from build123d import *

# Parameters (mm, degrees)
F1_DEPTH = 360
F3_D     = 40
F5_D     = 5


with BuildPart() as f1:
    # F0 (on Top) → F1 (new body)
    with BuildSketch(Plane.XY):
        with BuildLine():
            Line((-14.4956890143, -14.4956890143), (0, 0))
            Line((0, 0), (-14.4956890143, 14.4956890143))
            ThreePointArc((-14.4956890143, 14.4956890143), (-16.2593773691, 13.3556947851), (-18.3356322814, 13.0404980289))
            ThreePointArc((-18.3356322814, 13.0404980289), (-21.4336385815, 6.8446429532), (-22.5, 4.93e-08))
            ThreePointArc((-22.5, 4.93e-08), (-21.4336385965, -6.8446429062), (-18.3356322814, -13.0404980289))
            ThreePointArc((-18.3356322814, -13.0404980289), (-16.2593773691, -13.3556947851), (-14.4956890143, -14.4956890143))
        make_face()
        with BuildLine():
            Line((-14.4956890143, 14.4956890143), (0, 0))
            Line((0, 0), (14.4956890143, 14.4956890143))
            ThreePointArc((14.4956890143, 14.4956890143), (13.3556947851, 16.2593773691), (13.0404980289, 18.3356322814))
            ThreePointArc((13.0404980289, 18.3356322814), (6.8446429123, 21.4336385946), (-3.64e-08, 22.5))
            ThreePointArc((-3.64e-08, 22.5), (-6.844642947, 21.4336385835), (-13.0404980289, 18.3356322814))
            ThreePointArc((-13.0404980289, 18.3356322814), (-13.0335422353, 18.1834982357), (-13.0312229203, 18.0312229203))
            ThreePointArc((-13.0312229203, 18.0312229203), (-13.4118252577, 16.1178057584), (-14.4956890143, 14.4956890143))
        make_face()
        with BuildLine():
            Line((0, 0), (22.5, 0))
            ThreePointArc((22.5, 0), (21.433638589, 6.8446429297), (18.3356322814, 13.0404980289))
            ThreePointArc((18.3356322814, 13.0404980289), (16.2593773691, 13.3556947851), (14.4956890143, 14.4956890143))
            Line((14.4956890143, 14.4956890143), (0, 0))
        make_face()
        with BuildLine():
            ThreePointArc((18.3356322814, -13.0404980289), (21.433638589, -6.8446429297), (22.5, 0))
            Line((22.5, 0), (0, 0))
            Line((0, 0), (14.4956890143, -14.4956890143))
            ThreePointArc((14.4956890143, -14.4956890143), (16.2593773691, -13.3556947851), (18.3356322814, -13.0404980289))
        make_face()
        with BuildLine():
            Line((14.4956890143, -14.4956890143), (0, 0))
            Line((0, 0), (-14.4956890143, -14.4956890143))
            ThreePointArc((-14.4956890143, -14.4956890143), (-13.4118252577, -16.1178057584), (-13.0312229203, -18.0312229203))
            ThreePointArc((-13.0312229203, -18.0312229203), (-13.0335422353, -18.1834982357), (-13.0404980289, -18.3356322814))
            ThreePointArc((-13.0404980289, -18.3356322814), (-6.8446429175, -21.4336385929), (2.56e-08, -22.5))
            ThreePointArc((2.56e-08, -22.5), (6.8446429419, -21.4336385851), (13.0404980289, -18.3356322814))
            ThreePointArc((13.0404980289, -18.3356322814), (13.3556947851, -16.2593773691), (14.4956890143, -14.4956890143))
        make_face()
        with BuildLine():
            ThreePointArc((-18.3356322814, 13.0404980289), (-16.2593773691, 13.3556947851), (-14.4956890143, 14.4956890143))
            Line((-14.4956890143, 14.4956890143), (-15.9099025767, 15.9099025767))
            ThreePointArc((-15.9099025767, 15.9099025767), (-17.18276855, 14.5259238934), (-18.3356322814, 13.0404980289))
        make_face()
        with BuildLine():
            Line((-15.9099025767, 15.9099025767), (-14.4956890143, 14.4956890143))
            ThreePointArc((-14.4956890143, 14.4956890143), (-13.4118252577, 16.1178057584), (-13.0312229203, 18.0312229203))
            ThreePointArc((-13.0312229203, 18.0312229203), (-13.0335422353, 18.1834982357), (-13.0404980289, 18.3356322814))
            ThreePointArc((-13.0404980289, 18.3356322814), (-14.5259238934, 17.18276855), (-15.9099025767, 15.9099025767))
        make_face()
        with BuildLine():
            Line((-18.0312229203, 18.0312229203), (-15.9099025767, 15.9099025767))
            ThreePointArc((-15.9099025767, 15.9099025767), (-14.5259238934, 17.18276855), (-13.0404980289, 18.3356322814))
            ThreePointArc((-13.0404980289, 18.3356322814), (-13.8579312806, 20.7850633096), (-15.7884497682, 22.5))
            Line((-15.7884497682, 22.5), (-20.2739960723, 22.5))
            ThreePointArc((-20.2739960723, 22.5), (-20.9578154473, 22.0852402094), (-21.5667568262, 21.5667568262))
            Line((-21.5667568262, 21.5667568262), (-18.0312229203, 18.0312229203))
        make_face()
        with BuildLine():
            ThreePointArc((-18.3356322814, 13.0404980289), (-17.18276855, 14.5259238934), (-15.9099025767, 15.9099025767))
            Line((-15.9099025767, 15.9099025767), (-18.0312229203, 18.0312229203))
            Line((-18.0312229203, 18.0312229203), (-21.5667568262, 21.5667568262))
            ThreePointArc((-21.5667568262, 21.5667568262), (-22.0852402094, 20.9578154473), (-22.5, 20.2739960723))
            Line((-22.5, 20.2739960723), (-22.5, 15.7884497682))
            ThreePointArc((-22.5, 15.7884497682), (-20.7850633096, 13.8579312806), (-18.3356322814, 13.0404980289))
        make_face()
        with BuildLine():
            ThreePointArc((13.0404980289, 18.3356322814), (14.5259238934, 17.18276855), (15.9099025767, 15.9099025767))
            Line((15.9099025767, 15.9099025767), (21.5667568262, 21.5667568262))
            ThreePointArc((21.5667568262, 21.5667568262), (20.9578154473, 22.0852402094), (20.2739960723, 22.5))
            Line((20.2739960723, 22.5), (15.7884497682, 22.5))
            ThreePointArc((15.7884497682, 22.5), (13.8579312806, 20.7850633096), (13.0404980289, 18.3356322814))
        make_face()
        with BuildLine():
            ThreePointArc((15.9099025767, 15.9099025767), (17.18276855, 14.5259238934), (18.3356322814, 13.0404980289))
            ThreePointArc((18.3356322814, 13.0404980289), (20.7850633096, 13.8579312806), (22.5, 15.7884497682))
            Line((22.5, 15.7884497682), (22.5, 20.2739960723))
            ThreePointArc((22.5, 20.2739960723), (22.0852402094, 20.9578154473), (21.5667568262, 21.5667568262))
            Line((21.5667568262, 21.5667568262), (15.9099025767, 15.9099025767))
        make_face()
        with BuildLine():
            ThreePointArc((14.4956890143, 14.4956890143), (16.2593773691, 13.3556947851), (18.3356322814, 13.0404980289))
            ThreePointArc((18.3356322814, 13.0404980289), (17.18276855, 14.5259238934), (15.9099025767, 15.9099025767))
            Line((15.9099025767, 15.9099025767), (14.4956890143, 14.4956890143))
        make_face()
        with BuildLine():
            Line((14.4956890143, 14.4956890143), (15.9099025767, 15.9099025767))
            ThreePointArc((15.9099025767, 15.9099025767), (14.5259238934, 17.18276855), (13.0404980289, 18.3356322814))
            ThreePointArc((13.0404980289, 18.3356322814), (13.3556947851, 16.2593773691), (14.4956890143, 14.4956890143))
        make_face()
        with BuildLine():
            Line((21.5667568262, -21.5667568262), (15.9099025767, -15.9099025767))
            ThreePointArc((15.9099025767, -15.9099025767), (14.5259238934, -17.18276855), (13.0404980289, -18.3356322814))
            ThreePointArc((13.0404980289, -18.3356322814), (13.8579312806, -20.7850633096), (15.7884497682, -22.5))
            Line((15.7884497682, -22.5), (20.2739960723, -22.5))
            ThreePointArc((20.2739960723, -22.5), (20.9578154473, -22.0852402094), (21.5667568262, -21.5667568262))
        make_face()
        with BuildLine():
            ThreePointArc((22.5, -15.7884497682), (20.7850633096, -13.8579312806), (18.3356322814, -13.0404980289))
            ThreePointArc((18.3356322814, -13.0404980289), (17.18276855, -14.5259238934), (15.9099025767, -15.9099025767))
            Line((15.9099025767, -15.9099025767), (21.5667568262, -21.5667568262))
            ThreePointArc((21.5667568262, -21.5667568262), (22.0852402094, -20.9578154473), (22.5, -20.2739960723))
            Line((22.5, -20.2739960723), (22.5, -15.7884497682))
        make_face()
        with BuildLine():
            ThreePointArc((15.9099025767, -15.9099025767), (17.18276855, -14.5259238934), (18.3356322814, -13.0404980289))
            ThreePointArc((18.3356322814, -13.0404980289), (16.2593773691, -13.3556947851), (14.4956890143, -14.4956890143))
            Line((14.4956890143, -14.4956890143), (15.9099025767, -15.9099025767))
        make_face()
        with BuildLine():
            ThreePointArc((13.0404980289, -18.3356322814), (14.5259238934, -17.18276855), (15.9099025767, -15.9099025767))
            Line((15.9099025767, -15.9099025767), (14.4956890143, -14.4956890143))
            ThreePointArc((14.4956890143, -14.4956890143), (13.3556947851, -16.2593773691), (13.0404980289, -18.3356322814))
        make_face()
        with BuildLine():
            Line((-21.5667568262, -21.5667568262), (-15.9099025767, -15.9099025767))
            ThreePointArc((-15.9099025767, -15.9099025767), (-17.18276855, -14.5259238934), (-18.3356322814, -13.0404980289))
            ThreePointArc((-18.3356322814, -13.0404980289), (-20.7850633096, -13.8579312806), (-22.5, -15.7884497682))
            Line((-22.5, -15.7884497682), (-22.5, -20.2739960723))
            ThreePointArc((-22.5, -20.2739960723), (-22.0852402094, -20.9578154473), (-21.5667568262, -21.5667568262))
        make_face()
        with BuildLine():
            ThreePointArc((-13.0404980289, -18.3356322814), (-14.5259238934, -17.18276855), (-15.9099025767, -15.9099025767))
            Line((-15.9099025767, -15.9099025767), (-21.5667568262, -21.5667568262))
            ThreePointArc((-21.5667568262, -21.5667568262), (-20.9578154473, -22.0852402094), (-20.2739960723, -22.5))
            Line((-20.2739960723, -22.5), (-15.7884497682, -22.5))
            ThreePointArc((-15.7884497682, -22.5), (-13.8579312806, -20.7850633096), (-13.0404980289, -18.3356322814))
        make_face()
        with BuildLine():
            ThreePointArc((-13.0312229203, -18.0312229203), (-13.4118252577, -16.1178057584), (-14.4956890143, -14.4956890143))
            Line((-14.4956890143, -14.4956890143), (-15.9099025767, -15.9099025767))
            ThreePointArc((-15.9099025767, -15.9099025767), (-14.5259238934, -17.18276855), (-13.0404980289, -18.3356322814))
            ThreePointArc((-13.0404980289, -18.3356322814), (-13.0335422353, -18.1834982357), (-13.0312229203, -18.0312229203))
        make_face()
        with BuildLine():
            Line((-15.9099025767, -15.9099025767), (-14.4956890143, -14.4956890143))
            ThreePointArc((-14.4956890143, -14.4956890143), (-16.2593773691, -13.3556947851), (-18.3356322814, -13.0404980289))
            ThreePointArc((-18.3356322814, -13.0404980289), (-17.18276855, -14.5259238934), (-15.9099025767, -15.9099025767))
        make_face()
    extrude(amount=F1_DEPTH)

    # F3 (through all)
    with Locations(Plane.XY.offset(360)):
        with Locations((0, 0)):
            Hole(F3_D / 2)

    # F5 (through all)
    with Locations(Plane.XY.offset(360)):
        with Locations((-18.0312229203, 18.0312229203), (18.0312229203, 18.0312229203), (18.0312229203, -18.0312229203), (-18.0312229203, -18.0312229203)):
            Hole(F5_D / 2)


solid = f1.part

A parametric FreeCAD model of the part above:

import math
import FreeCAD as App
import Part
import Sketcher

V = App.Vector

doc = App.newDocument("Part")
body = doc.addObject("PartDesign::Body", "Body")

sketch1 = body.newObject("Sketcher::SketchObject", "Sketch")
sketch1.AttachmentSupport = (doc.getObject("XY_Plane"), [""])
sketch1.MapMode = "FlatFace"
sketch1.addGeometry(Part.ArcOfCircle(Part.Circle(V(0, 0, 0), V(0, 0, 1), 22.5), math.radians(180), math.radians(215.420845)), False)
sketch1.addGeometry(Part.ArcOfCircle(Part.Circle(V(-18.031223, -18.031223, 0), V(0, 0, 1), 5), math.radians(93.490433), math.radians(153.349012)), False)
sketch1.addGeometry(Part.LineSegment(V(-22.5, -15.78845, 0), V(-22.5, -20.273996, 0)), False)
sketch1.addGeometry(Part.ArcOfCircle(Part.Circle(V(-18.031223, -18.031223, 0), V(0, 0, 1), 5), math.radians(-153.349012), math.radians(-135)), False)
sketch1.addGeometry(Part.ArcOfCircle(Part.Circle(V(-18.031223, -18.031223, 0), V(0, 0, 1), 5), math.radians(-135), math.radians(-116.650988)), False)
sketch1.addGeometry(Part.LineSegment(V(-20.273996, -22.5, 0), V(-15.78845, -22.5, 0)), False)
sketch1.addGeometry(Part.ArcOfCircle(Part.Circle(V(-18.031223, -18.031223, 0), V(0, 0, 1), 5), math.radians(-63.349012), math.radians(-3.490433)), False)
sketch1.addGeometry(Part.ArcOfCircle(Part.Circle(V(0, 0, 0), V(0, 0, 1), 22.5), math.radians(-125.420845), math.radians(-90)), False)
sketch1.addGeometry(Part.ArcOfCircle(Part.Circle(V(0, 0, 0), V(0, 0, 1), 22.5), math.radians(-90), math.radians(-54.579155)), False)
sketch1.addGeometry(Part.ArcOfCircle(Part.Circle(V(18.031223, -18.031223, 0), V(0, 0, 1), 5), math.radians(-176.509567), math.radians(-116.650988)), False)
sketch1.addGeometry(Part.LineSegment(V(15.78845, -22.5, 0), V(20.273996, -22.5, 0)), False)
sketch1.addGeometry(Part.ArcOfCircle(Part.Circle(V(18.031223, -18.031223, 0), V(0, 0, 1), 5), math.radians(-63.349012), math.radians(-45)), False)
sketch1.addGeometry(Part.ArcOfCircle(Part.Circle(V(18.031223, -18.031223, 0), V(0, 0, 1), 5), math.radians(-45), math.radians(-26.650988)), False)
sketch1.addGeometry(Part.LineSegment(V(22.5, -20.273996, 0), V(22.5, -15.78845, 0)), False)
sketch1.addGeometry(Part.ArcOfCircle(Part.Circle(V(18.031223, -18.031223, 0), V(0, 0, 1), 5), math.radians(26.650988), math.radians(86.509567)), False)
sketch1.addGeometry(Part.ArcOfCircle(Part.Circle(V(0, 0, 0), V(0, 0, 1), 22.5), math.radians(-35.420845), math.radians(0)), False)
sketch1.addGeometry(Part.ArcOfCircle(Part.Circle(V(0, 0, 0), V(0, 0, 1), 22.5), math.radians(0), math.radians(35.420845)), False)
sketch1.addGeometry(Part.ArcOfCircle(Part.Circle(V(18.031223, 18.031223, 0), V(0, 0, 1), 5), math.radians(-86.509567), math.radians(-26.650988)), False)
sketch1.addGeometry(Part.LineSegment(V(22.5, 15.78845, 0), V(22.5, 20.273996, 0)), False)
sketch1.addGeometry(Part.ArcOfCircle(Part.Circle(V(18.031223, 18.031223, 0), V(0, 0, 1), 5), math.radians(26.650988), math.radians(45)), False)
sketch1.addGeometry(Part.ArcOfCircle(Part.Circle(V(18.031223, 18.031223, 0), V(0, 0, 1), 5), math.radians(45), math.radians(63.349012)), False)
sketch1.addGeometry(Part.LineSegment(V(20.273996, 22.5, 0), V(15.78845, 22.5, 0)), False)
sketch1.addGeometry(Part.ArcOfCircle(Part.Circle(V(18.031223, 18.031223, 0), V(0, 0, 1), 5), math.radians(116.650988), math.radians(176.509567)), False)
sketch1.addGeometry(Part.ArcOfCircle(Part.Circle(V(0, 0, 0), V(0, 0, 1), 22.5), math.radians(54.579155), math.radians(90)), False)
sketch1.addGeometry(Part.ArcOfCircle(Part.Circle(V(0, 0, 0), V(0, 0, 1), 22.5), math.radians(90), math.radians(125.420845)), False)
sketch1.addGeometry(Part.ArcOfCircle(Part.Circle(V(-18.031223, 18.031223, 0), V(0, 0, 1), 5), math.radians(3.490433), math.radians(63.349012)), False)
sketch1.addGeometry(Part.LineSegment(V(-15.78845, 22.5, 0), V(-20.273996, 22.5, 0)), False)
sketch1.addGeometry(Part.ArcOfCircle(Part.Circle(V(-18.031223, 18.031223, 0), V(0, 0, 1), 5), math.radians(116.650988), math.radians(135)), False)
sketch1.addGeometry(Part.ArcOfCircle(Part.Circle(V(-18.031223, 18.031223, 0), V(0, 0, 1), 5), math.radians(135), math.radians(153.349012)), False)
sketch1.addGeometry(Part.LineSegment(V(-22.5, 20.273996, 0), V(-22.5, 15.78845, 0)), False)
sketch1.addGeometry(Part.ArcOfCircle(Part.Circle(V(-18.031223, 18.031223, 0), V(0, 0, 1), 5), math.radians(-153.349012), math.radians(-93.490433)), False)
sketch1.addGeometry(Part.ArcOfCircle(Part.Circle(V(0, 0, 0), V(0, 0, 1), 22.5), math.radians(144.579155), math.radians(180)), False)
sketch1.addConstraint(Sketcher.Constraint("Coincident", 0, 2, 1, 1))
sketch1.addConstraint(Sketcher.Constraint("Coincident", 1, 2, 2, 1))
sketch1.addConstraint(Sketcher.Constraint("Coincident", 2, 2, 3, 1))
sketch1.addConstraint(Sketcher.Constraint("Tangent", 3, 2, 4, 1))
sketch1.addConstraint(Sketcher.Constraint("Coincident", 4, 2, 5, 1))
sketch1.addConstraint(Sketcher.Constraint("Coincident", 5, 2, 6, 1))
sketch1.addConstraint(Sketcher.Constraint("Coincident", 6, 2, 7, 1))
sketch1.addConstraint(Sketcher.Constraint("Tangent", 7, 2, 8, 1))
sketch1.addConstraint(Sketcher.Constraint("Coincident", 8, 2, 9, 1))
sketch1.addConstraint(Sketcher.Constraint("Coincident", 9, 2, 10, 1))
sketch1.addConstraint(Sketcher.Constraint("Coincident", 10, 2, 11, 1))
sketch1.addConstraint(Sketcher.Constraint("Tangent", 11, 2, 12, 1))
sketch1.addConstraint(Sketcher.Constraint("Coincident", 12, 2, 13, 1))
sketch1.addConstraint(Sketcher.Constraint("Coincident", 13, 2, 14, 1))
sketch1.addConstraint(Sketcher.Constraint("Coincident", 14, 2, 15, 1))
sketch1.addConstraint(Sketcher.Constraint("Tangent", 15, 2, 16, 1))
sketch1.addConstraint(Sketcher.Constraint("Coincident", 16, 2, 17, 1))
sketch1.addConstraint(Sketcher.Constraint("Coincident", 17, 2, 18, 1))
sketch1.addConstraint(Sketcher.Constraint("Coincident", 18, 2, 19, 1))
sketch1.addConstraint(Sketcher.Constraint("Tangent", 19, 2, 20, 1))
sketch1.addConstraint(Sketcher.Constraint("Coincident", 20, 2, 21, 1))
sketch1.addConstraint(Sketcher.Constraint("Coincident", 21, 2, 22, 1))
sketch1.addConstraint(Sketcher.Constraint("Coincident", 22, 2, 23, 1))
sketch1.addConstraint(Sketcher.Constraint("Tangent", 23, 2, 24, 1))
sketch1.addConstraint(Sketcher.Constraint("Coincident", 24, 2, 25, 1))
sketch1.addConstraint(Sketcher.Constraint("Coincident", 25, 2, 26, 1))
sketch1.addConstraint(Sketcher.Constraint("Coincident", 26, 2, 27, 1))
sketch1.addConstraint(Sketcher.Constraint("Tangent", 27, 2, 28, 1))
sketch1.addConstraint(Sketcher.Constraint("Coincident", 28, 2, 29, 1))
sketch1.addConstraint(Sketcher.Constraint("Coincident", 29, 2, 30, 1))
sketch1.addConstraint(Sketcher.Constraint("Coincident", 30, 2, 31, 1))
sketch1.addConstraint(Sketcher.Constraint("Tangent", 31, 2, 0, 1))
sketch1.addConstraint(Sketcher.Constraint("Vertical", 2))
sketch1.addConstraint(Sketcher.Constraint("Horizontal", 5))
sketch1.addConstraint(Sketcher.Constraint("Horizontal", 10))
sketch1.addConstraint(Sketcher.Constraint("Vertical", 13))
sketch1.addConstraint(Sketcher.Constraint("Vertical", 18))
sketch1.addConstraint(Sketcher.Constraint("Horizontal", 21))
sketch1.addConstraint(Sketcher.Constraint("Horizontal", 26))
sketch1.addConstraint(Sketcher.Constraint("Vertical", 29))
sketch1.addConstraint(Sketcher.Constraint("Coincident", 0, 3, -1, 1))
sketch1.addConstraint(Sketcher.Constraint("Coincident", 7, 3, -1, 1))
sketch1.addConstraint(Sketcher.Constraint("Coincident", 15, 3, -1, 1))
sketch1.addConstraint(Sketcher.Constraint("Coincident", 23, 3, -1, 1))
sketch1.addConstraint(Sketcher.Constraint("Coincident", 3, 3, 1, 3))
sketch1.addConstraint(Sketcher.Constraint("Coincident", 6, 3, 1, 3))
sketch1.addConstraint(Sketcher.Constraint("Coincident", 11, 3, 9, 3))
sketch1.addConstraint(Sketcher.Constraint("Coincident", 14, 3, 9, 3))
sketch1.addConstraint(Sketcher.Constraint("Coincident", 19, 3, 17, 3))
sketch1.addConstraint(Sketcher.Constraint("Coincident", 22, 3, 17, 3))
sketch1.addConstraint(Sketcher.Constraint("Coincident", 27, 3, 25, 3))
sketch1.addConstraint(Sketcher.Constraint("Coincident", 30, 3, 25, 3))
sketch1.addConstraint(Sketcher.Constraint("Equal", 1, 3))
sketch1.addConstraint(Sketcher.Constraint("Equal", 3, 4))
sketch1.addConstraint(Sketcher.Constraint("Equal", 4, 6))
sketch1.addConstraint(Sketcher.Constraint("Equal", 0, 7))
sketch1.addConstraint(Sketcher.Constraint("Equal", 7, 8))
sketch1.addConstraint(Sketcher.Constraint("Equal", 6, 9))
sketch1.addConstraint(Sketcher.Constraint("Equal", 9, 11))
sketch1.addConstraint(Sketcher.Constraint("Equal", 11, 12))
sketch1.addConstraint(Sketcher.Constraint("Equal", 12, 14))
sketch1.addConstraint(Sketcher.Constraint("Equal", 8, 15))
sketch1.addConstraint(Sketcher.Constraint("Equal", 15, 16))
sketch1.addConstraint(Sketcher.Constraint("Equal", 14, 17))
sketch1.addConstraint(Sketcher.Constraint("Equal", 17, 19))
sketch1.addConstraint(Sketcher.Constraint("Equal", 19, 20))
sketch1.addConstraint(Sketcher.Constraint("Equal", 20, 22))
sketch1.addConstraint(Sketcher.Constraint("Equal", 16, 23))
sketch1.addConstraint(Sketcher.Constraint("Equal", 23, 24))
sketch1.addConstraint(Sketcher.Constraint("Equal", 22, 25))
sketch1.addConstraint(Sketcher.Constraint("Equal", 25, 27))
sketch1.addConstraint(Sketcher.Constraint("Equal", 27, 28))
sketch1.addConstraint(Sketcher.Constraint("Equal", 28, 30))
sketch1.addConstraint(Sketcher.Constraint("Equal", 24, 31))
sketch1.addConstraint(Sketcher.Constraint("Symmetric", 1, 3, 17, 3, -1, 1))
sketch1.addConstraint(Sketcher.Constraint("Symmetric", 9, 3, 25, 3, -1, 1))
sketch1.addConstraint(Sketcher.Constraint("Symmetric", 1, 3, 9, 3, -2))
sketch1.addConstraint(Sketcher.Constraint("PointOnObject", 7, 2, -2))
sketch1.addConstraint(Sketcher.Constraint("PointOnObject", 15, 2, -1))
sketch1.addConstraint(Sketcher.Constraint("PointOnObject", 23, 2, -2))
sketch1.addConstraint(Sketcher.Constraint("PointOnObject", 31, 2, -1))
sketch1.addConstraint(Sketcher.Constraint("Horizontal", 5, 2, 7, 2))
sketch1.addConstraint(Sketcher.Constraint("Horizontal", 7, 2, 9, 2))
sketch1.addConstraint(Sketcher.Constraint("Horizontal", 3, 2, 11, 2))
sketch1.addConstraint(Sketcher.Constraint("Horizontal", 2, 2, 12, 2))
sketch1.addConstraint(Sketcher.Constraint("Horizontal", 21, 2, 23, 2))
sketch1.addConstraint(Sketcher.Constraint("Horizontal", 23, 2, 25, 2))
sketch1.addConstraint(Sketcher.Constraint("Horizontal", 19, 2, 27, 2))
sketch1.addConstraint(Sketcher.Constraint("Horizontal", 18, 2, 28, 2))
sketch1.addConstraint(Sketcher.Constraint("Vertical", 13, 2, 15, 2))
sketch1.addConstraint(Sketcher.Constraint("Vertical", 15, 2, 17, 2))
sketch1.addConstraint(Sketcher.Constraint("Vertical", 11, 2, 19, 2))
sketch1.addConstraint(Sketcher.Constraint("Equal", 26, 2))
sketch1.addConstraint(Sketcher.Constraint("Radius", 1, 5.0))
sketch1.addConstraint(Sketcher.Constraint("Radius", 0, 22.5))
sketch1.addConstraint(Sketcher.Constraint("DistanceY", 0, 2, -1, 1, 13.040498))
sketch1.addConstraint(Sketcher.Constraint("DistanceY", 3, 2, 2, 2, 1.292761))
pad1 = body.newObject("PartDesign::Pad", "Pad")
pad1.Profile = sketch1
pad1.Length = 360

sketch2 = body.newObject("Sketcher::SketchObject", "Sketch001")
sketch2.AttachmentSupport = (doc.getObject("XY_Plane"), [""])
sketch2.MapMode = "FlatFace"
sketch2.AttachmentOffset = App.Placement(V(0, 0, 360), App.Rotation())
sketch2.addGeometry(Part.Circle(V(0, 0, 0), V(0, 0, 1), 20), False)
sketch2.addConstraint(Sketcher.Constraint("Coincident", 0, 3, -1, 1))
sketch2.addConstraint(Sketcher.Constraint("Diameter", 0, 40.0))
doc.recompute()
hole = body.newObject("PartDesign::Hole", "Hole")
hole.Profile = sketch2
hole.ThreadType = "None"
hole.Diameter = 40
hole.DepthType = "ThroughAll"

sketch3 = body.newObject("Sketcher::SketchObject", "Sketch002")
sketch3.AttachmentSupport = (doc.getObject("XY_Plane"), [""])
sketch3.MapMode = "FlatFace"
sketch3.AttachmentOffset = App.Placement(V(0, 0, 360), App.Rotation())
sketch3.addGeometry(Part.Circle(V(-18.031223, 18.031223, 0), V(0, 0, 1), 2.5), False)
sketch3.addGeometry(Part.Circle(V(18.031223, 18.031223, 0), V(0, 0, 1), 2.5), False)
sketch3.addGeometry(Part.Circle(V(18.031223, -18.031223, 0), V(0, 0, 1), 2.5), False)
sketch3.addGeometry(Part.Circle(V(-18.031223, -18.031223, 0), V(0, 0, 1), 2.5), False)
sketch3.addConstraint(Sketcher.Constraint("Equal", 0, 1))
sketch3.addConstraint(Sketcher.Constraint("Equal", 1, 2))
sketch3.addConstraint(Sketcher.Constraint("Equal", 2, 3))
sketch3.addConstraint(Sketcher.Constraint("Symmetric", 0, 3, 2, 3, -1, 1))
sketch3.addConstraint(Sketcher.Constraint("Symmetric", 1, 3, 3, 3, -1, 1))
sketch3.addConstraint(Sketcher.Constraint("Symmetric", 0, 3, 1, 3, -2))
sketch3.addConstraint(Sketcher.Constraint("Diameter", 0, 5.0))
sketch3.addConstraint(Sketcher.Constraint("DistanceX", 0, 3, -1, 1, 18.031223))
sketch3.addConstraint(Sketcher.Constraint("DistanceY", -1, 1, 0, 3, 18.031223))
doc.recompute()
hole2 = body.newObject("PartDesign::Hole", "Hole001")
hole2.Profile = sketch3
hole2.ThreadType = "None"
hole2.Diameter = 5
hole2.DepthType = "ThroughAll"

doc.recompute()
